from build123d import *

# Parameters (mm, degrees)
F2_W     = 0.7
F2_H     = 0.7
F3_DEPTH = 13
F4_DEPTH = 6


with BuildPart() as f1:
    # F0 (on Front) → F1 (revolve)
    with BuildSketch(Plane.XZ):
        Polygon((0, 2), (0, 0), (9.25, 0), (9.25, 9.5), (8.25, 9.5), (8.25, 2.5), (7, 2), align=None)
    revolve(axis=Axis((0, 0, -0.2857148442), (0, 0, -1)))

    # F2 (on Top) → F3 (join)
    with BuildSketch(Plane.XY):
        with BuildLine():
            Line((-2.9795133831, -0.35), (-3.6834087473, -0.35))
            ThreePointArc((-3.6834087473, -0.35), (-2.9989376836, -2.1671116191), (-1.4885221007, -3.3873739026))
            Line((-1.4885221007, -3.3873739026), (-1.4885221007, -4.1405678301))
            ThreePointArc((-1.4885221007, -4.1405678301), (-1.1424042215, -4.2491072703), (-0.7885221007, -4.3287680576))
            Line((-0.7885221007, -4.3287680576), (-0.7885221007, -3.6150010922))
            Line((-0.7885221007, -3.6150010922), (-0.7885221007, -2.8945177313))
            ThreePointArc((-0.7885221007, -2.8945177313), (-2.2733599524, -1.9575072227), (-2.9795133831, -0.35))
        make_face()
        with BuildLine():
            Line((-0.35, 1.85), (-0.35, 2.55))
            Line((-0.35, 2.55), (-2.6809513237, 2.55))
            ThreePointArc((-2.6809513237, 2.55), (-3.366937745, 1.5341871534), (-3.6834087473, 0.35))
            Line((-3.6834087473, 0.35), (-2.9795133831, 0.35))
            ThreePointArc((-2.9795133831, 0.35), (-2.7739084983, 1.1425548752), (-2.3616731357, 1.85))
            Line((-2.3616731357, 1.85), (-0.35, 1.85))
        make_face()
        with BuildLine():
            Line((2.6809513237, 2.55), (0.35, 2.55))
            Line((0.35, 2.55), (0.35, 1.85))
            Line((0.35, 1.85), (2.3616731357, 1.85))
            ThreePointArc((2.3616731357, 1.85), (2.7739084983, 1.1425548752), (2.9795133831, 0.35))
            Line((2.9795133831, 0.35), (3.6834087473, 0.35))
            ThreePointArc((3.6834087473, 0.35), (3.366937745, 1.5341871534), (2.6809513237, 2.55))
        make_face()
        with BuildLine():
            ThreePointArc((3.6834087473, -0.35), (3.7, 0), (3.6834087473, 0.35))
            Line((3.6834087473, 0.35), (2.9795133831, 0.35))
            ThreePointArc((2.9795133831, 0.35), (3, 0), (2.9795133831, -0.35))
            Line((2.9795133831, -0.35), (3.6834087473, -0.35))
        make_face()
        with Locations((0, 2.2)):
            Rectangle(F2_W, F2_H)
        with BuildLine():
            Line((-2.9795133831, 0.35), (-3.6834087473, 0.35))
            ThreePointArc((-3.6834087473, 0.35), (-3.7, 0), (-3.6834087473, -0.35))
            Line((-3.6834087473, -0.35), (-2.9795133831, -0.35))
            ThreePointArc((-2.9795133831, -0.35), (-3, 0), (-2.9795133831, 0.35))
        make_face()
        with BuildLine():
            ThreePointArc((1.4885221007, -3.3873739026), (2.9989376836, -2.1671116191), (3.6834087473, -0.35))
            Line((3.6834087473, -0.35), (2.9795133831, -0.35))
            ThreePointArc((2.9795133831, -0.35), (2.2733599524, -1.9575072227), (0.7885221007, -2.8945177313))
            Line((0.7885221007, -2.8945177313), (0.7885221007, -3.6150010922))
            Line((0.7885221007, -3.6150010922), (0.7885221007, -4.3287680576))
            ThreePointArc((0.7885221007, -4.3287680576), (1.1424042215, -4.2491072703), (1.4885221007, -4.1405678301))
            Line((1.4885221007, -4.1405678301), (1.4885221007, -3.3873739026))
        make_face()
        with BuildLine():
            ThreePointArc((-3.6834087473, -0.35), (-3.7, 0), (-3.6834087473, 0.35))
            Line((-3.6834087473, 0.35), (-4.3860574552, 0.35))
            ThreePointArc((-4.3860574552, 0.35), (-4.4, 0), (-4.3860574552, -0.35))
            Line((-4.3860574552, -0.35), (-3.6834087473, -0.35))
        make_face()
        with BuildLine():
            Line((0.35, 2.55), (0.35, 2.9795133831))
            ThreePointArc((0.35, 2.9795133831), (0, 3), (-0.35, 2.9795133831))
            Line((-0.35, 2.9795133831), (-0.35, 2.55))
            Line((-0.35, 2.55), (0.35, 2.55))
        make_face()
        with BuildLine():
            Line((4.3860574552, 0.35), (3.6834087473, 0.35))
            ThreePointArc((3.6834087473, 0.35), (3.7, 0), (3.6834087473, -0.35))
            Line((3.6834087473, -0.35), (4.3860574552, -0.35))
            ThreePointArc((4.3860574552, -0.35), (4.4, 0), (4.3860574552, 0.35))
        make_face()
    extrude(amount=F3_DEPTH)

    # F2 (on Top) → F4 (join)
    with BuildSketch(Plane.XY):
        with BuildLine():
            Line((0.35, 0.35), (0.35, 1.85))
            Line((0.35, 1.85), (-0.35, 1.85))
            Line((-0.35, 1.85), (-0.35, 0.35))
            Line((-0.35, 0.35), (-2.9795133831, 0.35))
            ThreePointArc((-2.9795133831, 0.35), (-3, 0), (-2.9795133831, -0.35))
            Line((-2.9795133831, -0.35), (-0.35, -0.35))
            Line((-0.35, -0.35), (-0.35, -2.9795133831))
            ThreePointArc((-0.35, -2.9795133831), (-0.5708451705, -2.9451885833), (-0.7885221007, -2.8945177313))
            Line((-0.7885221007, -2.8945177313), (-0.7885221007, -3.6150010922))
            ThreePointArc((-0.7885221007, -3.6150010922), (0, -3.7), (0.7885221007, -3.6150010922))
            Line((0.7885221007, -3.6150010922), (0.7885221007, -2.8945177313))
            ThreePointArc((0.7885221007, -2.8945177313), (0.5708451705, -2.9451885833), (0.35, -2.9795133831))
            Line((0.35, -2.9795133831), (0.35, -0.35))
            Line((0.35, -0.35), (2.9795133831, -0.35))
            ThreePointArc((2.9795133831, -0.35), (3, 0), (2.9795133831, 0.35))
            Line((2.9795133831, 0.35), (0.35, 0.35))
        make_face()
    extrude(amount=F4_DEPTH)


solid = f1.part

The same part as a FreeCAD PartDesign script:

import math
import FreeCAD as App
import Part
import Sketcher
from FreeCAD import Vector


def add_polygon(sketch, points):
    """Adds a closed chain of lines whose ends are joined by coincident constraints."""
    first, n = sketch.GeometryCount, len(points)
    for a, b in zip(points, points[1:] + points[:1]):
        sketch.addGeometry(Part.LineSegment(App.Vector(*a, 0), App.Vector(*b, 0)), False)
    for i in range(n):
        sketch.addConstraint(Sketcher.Constraint("Coincident", first + i, 2, first + (i + 1) % n, 1))

doc = App.newDocument("Part")
body = doc.addObject("PartDesign::Body", "Body")

# Sketch on XZ plane
sketch1 = body.newObject("Sketcher::SketchObject", "Sketch")
sketch1.AttachmentSupport = (doc.getObject("XZ_Plane"), [""])
sketch1.MapMode = "FlatFace"
add_polygon(sketch1, [(0, 2), (0, 0), (9.25, 0), (9.25, 9.5), (8.25, 9.5), (8.25, 2.5), (7, 2)])  # lines 0-6
sketch1.addConstraint([
    Sketcher.Constraint("Vertical", 0),
    Sketcher.Constraint("Horizontal", 1),
    Sketcher.Constraint("Vertical", 2),
    Sketcher.Constraint("Horizontal", 3),
    Sketcher.Constraint("Vertical", 4),
    Sketcher.Constraint("Horizontal", 6),
    Sketcher.Constraint("Coincident", 0, 2, -1, 1),
    Sketcher.Constraint("Equal", 6, 4),
    Sketcher.Constraint("DistanceX", 3, 2, 3, 1, 1.0),
    Sketcher.Constraint("DistanceX", 6, 2, 6, 1, 7.0),
    Sketcher.Constraint("DistanceY", 0, 2, 0, 1, 2.0),
    Sketcher.Constraint("DistanceY", 2, 1, 2, 2, 9.5),
    Sketcher.Constraint("DistanceX", 1, 1, 1, 2, 9.25),
])
revolution = body.newObject("PartDesign::Revolution", "Revolution")
revolution.Profile = sketch1
revolution.ReferenceAxis = (sketch1, ["V_Axis"])
revolution.Angle = 360

# Sketch on XY plane
sketch2 = body.newObject("Sketcher::SketchObject", "Sketch001")
sketch2.AttachmentSupport = (doc.getObject("XY_Plane"), [""])
sketch2.MapMode = "FlatFace"
sketch2.addGeometry([
    Part.ArcOfCircle(Part.Circle(Vector(0, 0, 0), Vector(0, 0, 1), 3.7), math.radians(-174.572013), math.radians(-113.722246)),  # 0
    Part.LineSegment(Vector(-1.488522, -3.387374, 0), Vector(-1.488522, -4.140568, 0)),  # 1
    Part.ArcOfCircle(Part.Circle(Vector(0, 0, 0), Vector(0, 0, 1), 4.4), math.radians(-109.773364), math.radians(-100.323723)),  # 2
    Part.LineSegment(Vector(-0.788522, -4.328768, 0), Vector(-0.788522, -2.894518, 0)),  # 3
    Part.ArcOfCircle(Part.Circle(Vector(0, 0, 0), Vector(0, 0, 1), 3), math.radians(-173.300235), math.radians(-105.238686)),  # 4
    Part.ArcOfCircle(Part.Circle(Vector(0, 0, 0), Vector(0, 0, 1), 3), math.radians(173.300235), math.radians(186.699765)),  # 5
    Part.ArcOfCircle(Part.Circle(Vector(0, 0, 0), Vector(0, 0, 1), 3), math.radians(141.926877), math.radians(173.300235)),  # 6
    Part.LineSegment(Vector(-2.361673, 1.85, 0), Vector(2.361673, 1.85, 0)),  # 7
    Part.ArcOfCircle(Part.Circle(Vector(0, 0, 0), Vector(0, 0, 1), 3), math.radians(6.699765), math.radians(38.073123)),  # 8
    Part.ArcOfCircle(Part.Circle(Vector(0, 0, 0), Vector(0, 0, 1), 3), math.radians(-6.699765), math.radians(6.699765)),  # 9
    Part.ArcOfCircle(Part.Circle(Vector(0, 0, 0), Vector(0, 0, 1), 3), math.radians(-74.761314), math.radians(-6.699765)),  # 10
    Part.LineSegment(Vector(0.788522, -2.894518, 0), Vector(0.788522, -4.328768, 0)),  # 11
    Part.ArcOfCircle(Part.Circle(Vector(0, 0, 0), Vector(0, 0, 1), 4.4), math.radians(-79.676277), math.radians(-70.226636)),  # 12
    Part.LineSegment(Vector(1.488522, -4.140568, 0), Vector(1.488522, -3.387374, 0)),  # 13
    Part.ArcOfCircle(Part.Circle(Vector(0, 0, 0), Vector(0, 0, 1), 3.7), math.radians(-66.277754), math.radians(-5.427987)),  # 14
    Part.LineSegment(Vector(3.683409, -0.35, 0), Vector(4.386057, -0.35, 0)),  # 15
    Part.ArcOfCircle(Part.Circle(Vector(0, 0, 0), Vector(0, 0, 1), 4.4), math.radians(-4.562439), math.radians(4.562439)),  # 16
    Part.LineSegment(Vector(4.386057, 0.35, 0), Vector(3.683409, 0.35, 0)),  # 17
    Part.ArcOfCircle(Part.Circle(Vector(0, 0, 0), Vector(0, 0, 1), 3.7), math.radians(5.427987), math.radians(43.56596)),  # 18
    Part.LineSegment(Vector(2.680951, 2.55, 0), Vector(0.35, 2.55, 0)),  # 19
    Part.LineSegment(Vector(0.35, 2.55, 0), Vector(0.35, 2.979513, 0)),  # 20
    Part.ArcOfCircle(Part.Circle(Vector(0, 0, 0), Vector(0, 0, 1), 3), math.radians(83.300235), math.radians(96.699765)),  # 21
    Part.LineSegment(Vector(-0.35, 2.979513, 0), Vector(-0.35, 2.55, 0)),  # 22
    Part.LineSegment(Vector(-0.35, 2.55, 0), Vector(-2.680951, 2.55, 0)),  # 23
    Part.ArcOfCircle(Part.Circle(Vector(0, 0, 0), Vector(0, 0, 1), 3.7), math.radians(136.43404), math.radians(174.572013)),  # 24
    Part.LineSegment(Vector(-3.683409, 0.35, 0), Vector(-4.386057, 0.35, 0)),  # 25
    Part.ArcOfCircle(Part.Circle(Vector(0, 0, 0), Vector(0, 0, 1), 4.4), math.radians(175.437561), math.radians(184.562439)),  # 26
    Part.LineSegment(Vector(-4.386057, -0.35, 0), Vector(-3.683409, -0.35, 0)),  # 27
], False)
sketch2.addConstraint([
    Sketcher.Constraint("Coincident", 0, 2, 1, 1),
    Sketcher.Constraint("Coincident", 1, 2, 2, 1),
    Sketcher.Constraint("Coincident", 2, 2, 3, 1),
    Sketcher.Constraint("Coincident", 3, 2, 4, 2),
    Sketcher.Constraint("Tangent", 4, 1, 5, 2),
    Sketcher.Constraint("Tangent", 5, 1, 6, 2),
    Sketcher.Constraint("Coincident", 6, 1, 7, 1),
    Sketcher.Constraint("Coincident", 7, 2, 8, 2),
    Sketcher.Constraint("Tangent", 8, 1, 9, 2),
    Sketcher.Constraint("Tangent", 9, 1, 10, 2),
    Sketcher.Constraint("Coincident", 10, 1, 11, 1),
    Sketcher.Constraint("Coincident", 11, 2, 12, 1),
    Sketcher.Constraint("Coincident", 12, 2, 13, 1),
    Sketcher.Constraint("Coincident", 13, 2, 14, 1),
    Sketcher.Constraint("Coincident", 14, 2, 15, 1),
    Sketcher.Constraint("Coincident", 15, 2, 16, 1),
    Sketcher.Constraint("Coincident", 16, 2, 17, 1),
    Sketcher.Constraint("Coincident", 17, 2, 18, 1),
    Sketcher.Constraint("Coincident", 18, 2, 19, 1),
    Sketcher.Constraint("Coincident", 19, 2, 20, 1),
    Sketcher.Constraint("Coincident", 20, 2, 21, 1),
    Sketcher.Constraint("Coincident", 21, 2, 22, 1),
    Sketcher.Constraint("Coincident", 22, 2, 23, 1),
    Sketcher.Constraint("Coincident", 23, 2, 24, 1),
    Sketcher.Constraint("Coincident", 24, 2, 25, 1),
    Sketcher.Constraint("Coincident", 25, 2, 26, 1),
    Sketcher.Constraint("Coincident", 26, 2, 27, 1),
    Sketcher.Constraint("Coincident", 27, 2, 0, 1),
    Sketcher.Constraint("Vertical", 1),
    Sketcher.Constraint("Vertical", 3),
    Sketcher.Constraint("Horizontal", 7),
    Sketcher.Constraint("Vertical", 11),
    Sketcher.Constraint("Vertical", 13),
    Sketcher.Constraint("Horizontal", 15),
    Sketcher.Constraint("Horizontal", 17),
    Sketcher.Constraint("Horizontal", 19),
    Sketcher.Constraint("Vertical", 20),
    Sketcher.Constraint("Vertical", 22),
    Sketcher.Constraint("Horizontal", 23),
    Sketcher.Constraint("Horizontal", 25),
    Sketcher.Constraint("Horizontal", 27),
    Sketcher.Constraint("Coincident", 0, 3, -1, 1),
    Sketcher.Constraint("Coincident", 2, 3, -1, 1),
    Sketcher.Constraint("Coincident", 4, 3, -1, 1),
    Sketcher.Constraint("Coincident", 6, 3, -1, 1),
    Sketcher.Constraint("Coincident", 8, 3, -1, 1),
    Sketcher.Constraint("Coincident", 10, 3, -1, 1),
    Sketcher.Constraint("Coincident", 12, 3, -1, 1),
    Sketcher.Constraint("Coincident", 14, 3, -1, 1),
    Sketcher.Constraint("Coincident", 16, 3, -1, 1),
    Sketcher.Constraint("Coincident", 18, 3, -1, 1),
    Sketcher.Constraint("Coincident", 21, 3, -1, 1),
    Sketcher.Constraint("Coincident", 24, 3, -1, 1),
    Sketcher.Constraint("Coincident", 26, 3, -1, 1),
    Sketcher.Constraint("Equal", 6, 8),
    Sketcher.Constraint("Equal", 2, 12),
    Sketcher.Constraint("Equal", 0, 14),
    Sketcher.Constraint("Equal", 12, 16),
    Sketcher.Constraint("Equal", 14, 18),
    Sketcher.Constraint("Equal", 10, 21),
    Sketcher.Constraint("Equal", 18, 24),
    Sketcher.Constraint("Equal", 16, 26),
    Sketcher.Constraint("Symmetric", 19, 2, 22, 2, -2),
    Sketcher.Constraint("Horizontal", 5, 1, 8, 1),
    Sketcher.Constraint("Horizontal", 4, 1, 9, 1),
    Sketcher.Constraint("Horizontal", 3, 2, 10, 1),
    Sketcher.Constraint("Horizontal", 1, 2, 12, 2),
    Sketcher.Constraint("Horizontal", 9, 1, 14, 2),
    Sketcher.Constraint("Horizontal", 8, 1, 16, 2),
    Sketcher.Constraint("Horizontal", 17, 2, 24, 2),
    Sketcher.Constraint("Horizontal", 15, 2, 26, 2),
    Sketcher.Constraint("Vertical", 4, 1, 5, 1),
    Sketcher.Constraint("Radius", 4, 3.0),
    Sketcher.Constraint("Radius", 0, 3.7),
    Sketcher.Constraint("Radius", 2, 4.4),
    Sketcher.Constraint("DistanceX", 1, 2, 2, 2, 0.7),
    Sketcher.Constraint("DistanceY", 4, 1, 5, 1, 0.7),
    Sketcher.Constraint("DistanceY", 5, 1, 6, 1, 1.5),
    Sketcher.Constraint("DistanceY", 7, 2, 18, 2, 0.7),
    Sketcher.Constraint("DistanceX", 21, 2, 20, 2, 0.7),
    Sketcher.Constraint("DistanceY", 3, 1, 3, 2, 1.43425),
])
pad1 = body.newObject("PartDesign::Pad", "Pad")
pad1.Profile = sketch2
pad1.Length = 13

# Sketch on XY plane
sketch3 = body.newObject("Sketcher::SketchObject", "Sketch002")
sketch3.AttachmentSupport = (doc.getObject("XY_Plane"), [""])
sketch3.MapMode = "FlatFace"
sketch3.addGeometry([
    Part.LineSegment(Vector(0.35, 0.35, 0), Vector(0.35, 1.85, 0)),  # 0
    Part.LineSegment(Vector(0.35, 1.85, 0), Vector(-0.35, 1.85, 0)),  # 1
    Part.LineSegment(Vector(-0.35, 1.85, 0), Vector(-0.35, 0.35, 0)),  # 2
    Part.LineSegment(Vector(-0.35, 0.35, 0), Vector(-2.979513, 0.35, 0)),  # 3
    Part.ArcOfCircle(Part.Circle(Vector(0, 0, 0), Vector(0, 0, 1), 3), math.radians(173.300235), math.radians(186.699765)),  # 4
    Part.LineSegment(Vector(-2.979513, -0.35, 0), Vector(-0.35, -0.35, 0)),  # 5
    Part.LineSegment(Vector(-0.35, -0.35, 0), Vector(-0.35, -2.979513, 0)),  # 6
    Part.ArcOfCircle(Part.Circle(Vector(0, 0, 0), Vector(0, 0, 1), 3), math.radians(-105.238686), math.radians(-96.699765)),  # 7
    Part.LineSegment(Vector(-0.788522, -2.894518, 0), Vector(-0.788522, -3.615001, 0)),  # 8
    Part.ArcOfCircle(Part.Circle(Vector(0, 0, 0), Vector(0, 0, 1), 3.7), math.radians(-102.304908), math.radians(-77.695092)),  # 9
    Part.LineSegment(Vector(0.788522, -3.615001, 0), Vector(0.788522, -2.894518, 0)),  # 10
    Part.ArcOfCircle(Part.Circle(Vector(0, 0, 0), Vector(0, 0, 1), 3), math.radians(-83.300235), math.radians(-74.761314)),  # 11
    Part.LineSegment(Vector(0.35, -2.979513, 0), Vector(0.35, -0.35, 0)),  # 12
    Part.LineSegment(Vector(0.35, -0.35, 0), Vector(2.979513, -0.35, 0)),  # 13
    Part.ArcOfCircle(Part.Circle(Vector(0, 0, 0), Vector(0, 0, 1), 3), math.radians(-6.699765), math.radians(6.699765)),  # 14
    Part.LineSegment(Vector(2.979513, 0.35, 0), Vector(0.35, 0.35, 0)),  # 15
], False)
sketch3.addConstraint([
    Sketcher.Constraint("Coincident", 0, 2, 1, 1),
    Sketcher.Constraint("Coincident", 1, 2, 2, 1),
    Sketcher.Constraint("Coincident", 2, 2, 3, 1),
    Sketcher.Constraint("Coincident", 3, 2, 4, 1),
    Sketcher.Constraint("Coincident", 4, 2, 5, 1),
    Sketcher.Constraint("Coincident", 5, 2, 6, 1),
    Sketcher.Constraint("Coincident", 6, 2, 7, 2),
    Sketcher.Constraint("Coincident", 7, 1, 8, 1),
    Sketcher.Constraint("Coincident", 8, 2, 9, 1),
    Sketcher.Constraint("Coincident", 9, 2, 10, 1),
    Sketcher.Constraint("Coincident", 10, 2, 11, 2),
    Sketcher.Constraint("Coincident", 11, 1, 12, 1),
    Sketcher.Constraint("Coincident", 12, 2, 13, 1),
    Sketcher.Constraint("Coincident", 13, 2, 14, 1),
    Sketcher.Constraint("Coincident", 14, 2, 15, 1),
    Sketcher.Constraint("Coincident", 15, 2, 0, 1),
    Sketcher.Constraint("Vertical", 0),
    Sketcher.Constraint("Horizontal", 1),
    Sketcher.Constraint("Vertical", 2),
    Sketcher.Constraint("Horizontal", 3),
    Sketcher.Constraint("Horizontal", 5),
    Sketcher.Constraint("Vertical", 6),
    Sketcher.Constraint("Vertical", 8),
    Sketcher.Constraint("Vertical", 10),
    Sketcher.Constraint("Vertical", 12),
    Sketcher.Constraint("Horizontal", 13),
    Sketcher.Constraint("Horizontal", 15),
    Sketcher.Constraint("Coincident", 4, 3, -1, 1),
    Sketcher.Constraint("Coincident", 7, 3, -1, 1),
    Sketcher.Constraint("Coincident", 9, 3, -1, 1),
    Sketcher.Constraint("Coincident", 11, 3, -1, 1),
    Sketcher.Constraint("Coincident", 14, 3, -1, 1),
    Sketcher.Constraint("Equal", 4, 7),
    Sketcher.Constraint("Equal", 7, 11),
    Sketcher.Constraint("Equal", 11, 14),
    Sketcher.Constraint("Symmetric", 2, 2, 12, 2, -1, 1),
    Sketcher.Constraint("Symmetric", 5, 2, 15, 2, -1, 1),
    Sketcher.Constraint("Symmetric", 5, 2, 12, 2, -2),
    Sketcher.Constraint("Horizontal", 8, 2, 9, 2),
    Sketcher.Constraint("Equal", 15, 6),
    Sketcher.Constraint("Radius", 4, 3.0),
    Sketcher.Constraint("Radius", 9, 3.7),
    Sketcher.Constraint("DistanceX", 1, 2, 1, 1, 0.7),
    Sketcher.Constraint("DistanceY", 0, 1, 0, 2, 1.5),
    Sketcher.Constraint("DistanceY", 8, 2, -1, 1, 3.615001),
])
pad2 = body.newObject("PartDesign::Pad", "Pad001")
pad2.Profile = sketch3
pad2.Length = 6

doc.recompute()
